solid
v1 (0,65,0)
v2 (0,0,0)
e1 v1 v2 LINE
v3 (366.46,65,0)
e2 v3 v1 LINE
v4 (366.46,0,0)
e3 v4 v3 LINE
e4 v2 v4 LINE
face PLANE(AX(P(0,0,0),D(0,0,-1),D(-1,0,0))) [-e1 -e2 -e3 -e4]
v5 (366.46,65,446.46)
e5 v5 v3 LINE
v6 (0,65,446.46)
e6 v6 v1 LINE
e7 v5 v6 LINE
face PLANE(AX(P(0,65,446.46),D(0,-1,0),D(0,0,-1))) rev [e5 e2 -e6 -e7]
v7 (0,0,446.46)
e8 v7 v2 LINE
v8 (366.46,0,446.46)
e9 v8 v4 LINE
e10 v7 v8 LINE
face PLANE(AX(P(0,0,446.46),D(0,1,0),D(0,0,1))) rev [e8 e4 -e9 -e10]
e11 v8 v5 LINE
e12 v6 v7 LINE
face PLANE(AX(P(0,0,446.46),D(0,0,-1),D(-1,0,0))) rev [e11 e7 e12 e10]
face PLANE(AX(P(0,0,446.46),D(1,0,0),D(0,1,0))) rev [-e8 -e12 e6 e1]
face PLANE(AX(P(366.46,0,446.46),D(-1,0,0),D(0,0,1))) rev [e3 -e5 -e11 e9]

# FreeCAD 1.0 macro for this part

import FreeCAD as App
import Part
import Sketcher
from FreeCAD import Vector
Q = App.Units.Quantity


def add_polygon(sketch, points):
    """Adds a closed chain of lines whose ends are joined by coincident constraints."""
    first, n = sketch.GeometryCount, len(points)
    for a, b in zip(points, points[1:] + points[:1]):
        sketch.addGeometry(Part.LineSegment(App.Vector(*a, 0), App.Vector(*b, 0)), False)
    for i in range(n):
        sketch.addConstraint(Sketcher.Constraint("Coincident", first + i, 2, first + (i + 1) % n, 1))

doc = App.newDocument("Part")
body = doc.addObject("PartDesign::Body", "Body")

sketch1 = doc.addObject("Sketcher::SketchObject", "Sketch")
body.addObject(sketch1)
sketch1.AttachmentSupport = (doc.XY_Plane, [""])
sketch1.MapMode = "FlatFace"
add_polygon(sketch1, [(0, 65), (0, 0), (366.46, 0), (366.46, 65)])
sketch1.addConstraint(Sketcher.Constraint("Vertical", 0))
sketch1.addConstraint(Sketcher.Constraint("Horizontal", 1))
sketch1.addConstraint(Sketcher.Constraint("Vertical", 2))
sketch1.addConstraint(Sketcher.Constraint("Horizontal", 3))
sketch1.addConstraint(Sketcher.Constraint("Coincident", 0, 2, -1, 1))
sketch1.addConstraint(Sketcher.Constraint("DistanceY", 0, 2, 0, 1, Q("65 mm")))
sketch1.addConstraint(Sketcher.Constraint("DistanceX", 1, 1, 1, 2, Q("366.46 mm")))
pad1 = doc.addObject("PartDesign::Pad", "Pad")
body.addObject(pad1)
pad1.Profile = sketch1
pad1.Length = 446.46

doc.recompute()
